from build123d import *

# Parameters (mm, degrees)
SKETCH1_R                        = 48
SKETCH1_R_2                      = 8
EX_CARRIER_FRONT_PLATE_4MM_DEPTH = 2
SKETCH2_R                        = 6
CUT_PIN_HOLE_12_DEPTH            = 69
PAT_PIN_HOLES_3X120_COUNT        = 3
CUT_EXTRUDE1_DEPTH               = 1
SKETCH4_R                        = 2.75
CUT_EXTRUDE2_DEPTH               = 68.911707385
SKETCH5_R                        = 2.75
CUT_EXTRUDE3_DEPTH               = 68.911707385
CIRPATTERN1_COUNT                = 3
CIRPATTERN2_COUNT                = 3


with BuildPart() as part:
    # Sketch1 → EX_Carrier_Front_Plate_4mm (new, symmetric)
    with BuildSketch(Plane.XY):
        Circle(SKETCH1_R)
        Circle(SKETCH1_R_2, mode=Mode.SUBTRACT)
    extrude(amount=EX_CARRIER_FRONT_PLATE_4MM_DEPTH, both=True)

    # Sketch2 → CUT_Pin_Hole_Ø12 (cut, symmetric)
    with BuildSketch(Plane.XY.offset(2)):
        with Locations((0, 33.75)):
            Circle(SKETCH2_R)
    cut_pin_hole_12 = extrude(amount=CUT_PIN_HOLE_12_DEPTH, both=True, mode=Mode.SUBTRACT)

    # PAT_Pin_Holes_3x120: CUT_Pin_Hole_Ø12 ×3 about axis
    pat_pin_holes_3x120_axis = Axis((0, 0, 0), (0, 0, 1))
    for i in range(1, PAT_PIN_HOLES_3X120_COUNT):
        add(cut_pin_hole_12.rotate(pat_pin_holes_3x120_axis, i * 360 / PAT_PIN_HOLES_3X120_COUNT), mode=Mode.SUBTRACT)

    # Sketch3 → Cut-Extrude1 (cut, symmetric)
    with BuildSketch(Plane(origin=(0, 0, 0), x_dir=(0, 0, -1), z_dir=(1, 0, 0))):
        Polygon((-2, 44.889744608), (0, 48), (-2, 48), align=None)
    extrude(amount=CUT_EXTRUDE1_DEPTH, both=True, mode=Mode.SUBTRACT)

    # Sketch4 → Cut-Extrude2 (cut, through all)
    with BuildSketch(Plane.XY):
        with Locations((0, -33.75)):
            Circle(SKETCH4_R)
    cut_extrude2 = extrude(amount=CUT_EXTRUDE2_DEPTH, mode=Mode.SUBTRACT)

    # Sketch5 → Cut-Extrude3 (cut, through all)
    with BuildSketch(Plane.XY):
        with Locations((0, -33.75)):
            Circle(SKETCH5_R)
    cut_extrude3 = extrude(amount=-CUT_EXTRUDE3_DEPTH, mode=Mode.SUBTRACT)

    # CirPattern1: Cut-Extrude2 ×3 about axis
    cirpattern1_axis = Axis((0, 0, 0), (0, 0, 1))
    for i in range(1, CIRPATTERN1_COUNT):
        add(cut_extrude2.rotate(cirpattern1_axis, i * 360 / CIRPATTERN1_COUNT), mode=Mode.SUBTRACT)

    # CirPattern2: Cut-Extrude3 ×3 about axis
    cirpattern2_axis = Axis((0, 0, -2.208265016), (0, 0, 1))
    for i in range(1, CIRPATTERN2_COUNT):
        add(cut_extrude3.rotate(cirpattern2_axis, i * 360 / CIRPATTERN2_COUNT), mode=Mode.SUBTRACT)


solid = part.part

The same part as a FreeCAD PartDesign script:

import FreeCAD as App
import Part
import Sketcher

V = App.Vector
Q = App.Units.Quantity

doc = App.newDocument("Part")
body = doc.addObject("PartDesign::Body", "Body")

# Sketch on XY plane
sketch1 = doc.addObject("Sketcher::SketchObject", "Sketch")
body.addObject(sketch1)
sketch1.AttachmentSupport = (doc.XY_Plane, [""])
sketch1.MapMode = "FlatFace"
sketch1.addGeometry([
    Part.Circle(V(0, 0, 0), V(0, 0, 1), 48),
    Part.Circle(V(0, 0, 0), V(0, 0, 1), 8),
], False)
sketch1.addConstraint([
    Sketcher.Constraint("Coincident", 0, 3, -1, 1),
    Sketcher.Constraint("Coincident", 1, 3, -1, 1),
    Sketcher.Constraint("Diameter", 0, Q("96 mm")),
    Sketcher.Constraint("Diameter", 1, Q("16 mm")),
])
pad1 = doc.addObject("PartDesign::Pad", "Pad")
body.addObject(pad1)
pad1.Profile = sketch1
pad1.Length = 4
pad1.Midplane = True

# Sketch on XY plane
sketch2 = doc.addObject("Sketcher::SketchObject", "Sketch001")
body.addObject(sketch2)
sketch2.AttachmentSupport = (doc.XY_Plane, [""])
sketch2.MapMode = "FlatFace"
sketch2.AttachmentOffset = App.Placement(V(0, 0, 2), App.Rotation())
sketch2.addGeometry(Part.Circle(V(0, 34, 0), V(0, 0, 1), 6), False)
sketch2.addConstraint([
    Sketcher.Constraint("PointOnObject", 0, 3, -2),
    Sketcher.Constraint("Diameter", 0, Q("12 mm")),
    Sketcher.Constraint("DistanceY", -1, 1, 0, 3, Q("33.75 mm")),
])
pocket1 = doc.addObject("PartDesign::Pocket", "Pocket")
body.addObject(pocket1)
pocket1.Profile = sketch2
pocket1.Length = 138
pocket1.Midplane = True
doc.recompute()

polarpattern = doc.addObject("PartDesign::PolarPattern", "PolarPattern")
body.addObject(polarpattern)
polarpattern.Originals = [pocket1]
polarpattern.Axis = (doc.Z_Axis, [""])
polarpattern.Angle = 360
polarpattern.Occurrences = 3
body.Tip = polarpattern

# Sketch on YZ plane
sketch3 = doc.addObject("Sketcher::SketchObject", "Sketch002")
body.addObject(sketch3)
sketch3.AttachmentSupport = (doc.YZ_Plane, [""])
sketch3.MapMode = "FlatFace"
sketch3.addGeometry([
    Part.LineSegment(V(44.9, 2, 0), V(48, 0, 0)),
    Part.LineSegment(V(48, 0, 0), V(48, 2, 0)),
    Part.LineSegment(V(48, 2, 0), V(44.9, 2, 0)),
], False)
sketch3.addConstraint([
    Sketcher.Constraint("Coincident", 0, 2, 1, 1),
    Sketcher.Constraint("Coincident", 1, 2, 2, 1),
    Sketcher.Constraint("Coincident", 2, 2, 0, 1),
    Sketcher.Constraint("Vertical", 1),
    Sketcher.Constraint("Horizontal", 2),
    Sketcher.Constraint("PointOnObject", 0, 2, -1),
    Sketcher.Constraint("DistanceY", 1, 1, 1, 2, Q("2 mm")),
    Sketcher.Constraint("DistanceX", -1, 1, 0, 2, Q("48 mm")),
    Sketcher.Constraint("DistanceX", 2, 2, 2, 1, Q("3.110255 mm")),
])
pocket2 = doc.addObject("PartDesign::Pocket", "Pocket001")
body.addObject(pocket2)
pocket2.Profile = sketch3
pocket2.Length = 2
pocket2.Midplane = True

# Sketch on XY plane
sketch4 = doc.addObject("Sketcher::SketchObject", "Sketch003")
body.addObject(sketch4)
sketch4.AttachmentSupport = (doc.XY_Plane, [""])
sketch4.MapMode = "FlatFace"
sketch4.addGeometry(Part.Circle(V(0, -33.8, 0), V(0, 0, 1), 2.8), False)
sketch4.addConstraint([
    Sketcher.Constraint("PointOnObject", 0, 3, -2),
    Sketcher.Constraint("Diameter", 0, Q("5.5 mm")),
    Sketcher.Constraint("DistanceY", 0, 3, -1, 1, Q("33.75 mm")),
])
pocket3 = doc.addObject("PartDesign::Pocket", "Pocket002")
body.addObject(pocket3)
pocket3.Profile = sketch4
pocket3.Type = "ThroughAll"
pocket3.Reversed = True

# Sketch on XY plane
sketch5 = doc.addObject("Sketcher::SketchObject", "Sketch004")
body.addObject(sketch5)
sketch5.AttachmentSupport = (doc.XY_Plane, [""])
sketch5.MapMode = "FlatFace"
sketch5.addGeometry(Part.Circle(V(0, -33.8, 0), V(0, 0, 1), 2.8), False)
sketch5.addConstraint([
    Sketcher.Constraint("PointOnObject", 0, 3, -2),
    Sketcher.Constraint("Diameter", 0, Q("5.5 mm")),
    Sketcher.Constraint("DistanceY", 0, 3, -1, 1, Q("33.75 mm")),
])
pocket4 = doc.addObject("PartDesign::Pocket", "Pocket003")
body.addObject(pocket4)
pocket4.Profile = sketch5
pocket4.Type = "ThroughAll"
doc.recompute()

polarpattern2 = doc.addObject("PartDesign::PolarPattern", "PolarPattern001")
body.addObject(polarpattern2)
polarpattern2.Originals = [pocket3]
polarpattern2.Axis = (doc.Z_Axis, [""])
polarpattern2.Angle = 360
polarpattern2.Occurrences = 3
body.Tip = polarpattern2
doc.recompute()

polarpattern3 = doc.addObject("PartDesign::PolarPattern", "PolarPattern002")
body.addObject(polarpattern3)
polarpattern3.Originals = [pocket4]
polarpattern3.Axis = (doc.Z_Axis, [""])
polarpattern3.Angle = 360
polarpattern3.Occurrences = 3
body.Tip = polarpattern3

doc.recompute()
